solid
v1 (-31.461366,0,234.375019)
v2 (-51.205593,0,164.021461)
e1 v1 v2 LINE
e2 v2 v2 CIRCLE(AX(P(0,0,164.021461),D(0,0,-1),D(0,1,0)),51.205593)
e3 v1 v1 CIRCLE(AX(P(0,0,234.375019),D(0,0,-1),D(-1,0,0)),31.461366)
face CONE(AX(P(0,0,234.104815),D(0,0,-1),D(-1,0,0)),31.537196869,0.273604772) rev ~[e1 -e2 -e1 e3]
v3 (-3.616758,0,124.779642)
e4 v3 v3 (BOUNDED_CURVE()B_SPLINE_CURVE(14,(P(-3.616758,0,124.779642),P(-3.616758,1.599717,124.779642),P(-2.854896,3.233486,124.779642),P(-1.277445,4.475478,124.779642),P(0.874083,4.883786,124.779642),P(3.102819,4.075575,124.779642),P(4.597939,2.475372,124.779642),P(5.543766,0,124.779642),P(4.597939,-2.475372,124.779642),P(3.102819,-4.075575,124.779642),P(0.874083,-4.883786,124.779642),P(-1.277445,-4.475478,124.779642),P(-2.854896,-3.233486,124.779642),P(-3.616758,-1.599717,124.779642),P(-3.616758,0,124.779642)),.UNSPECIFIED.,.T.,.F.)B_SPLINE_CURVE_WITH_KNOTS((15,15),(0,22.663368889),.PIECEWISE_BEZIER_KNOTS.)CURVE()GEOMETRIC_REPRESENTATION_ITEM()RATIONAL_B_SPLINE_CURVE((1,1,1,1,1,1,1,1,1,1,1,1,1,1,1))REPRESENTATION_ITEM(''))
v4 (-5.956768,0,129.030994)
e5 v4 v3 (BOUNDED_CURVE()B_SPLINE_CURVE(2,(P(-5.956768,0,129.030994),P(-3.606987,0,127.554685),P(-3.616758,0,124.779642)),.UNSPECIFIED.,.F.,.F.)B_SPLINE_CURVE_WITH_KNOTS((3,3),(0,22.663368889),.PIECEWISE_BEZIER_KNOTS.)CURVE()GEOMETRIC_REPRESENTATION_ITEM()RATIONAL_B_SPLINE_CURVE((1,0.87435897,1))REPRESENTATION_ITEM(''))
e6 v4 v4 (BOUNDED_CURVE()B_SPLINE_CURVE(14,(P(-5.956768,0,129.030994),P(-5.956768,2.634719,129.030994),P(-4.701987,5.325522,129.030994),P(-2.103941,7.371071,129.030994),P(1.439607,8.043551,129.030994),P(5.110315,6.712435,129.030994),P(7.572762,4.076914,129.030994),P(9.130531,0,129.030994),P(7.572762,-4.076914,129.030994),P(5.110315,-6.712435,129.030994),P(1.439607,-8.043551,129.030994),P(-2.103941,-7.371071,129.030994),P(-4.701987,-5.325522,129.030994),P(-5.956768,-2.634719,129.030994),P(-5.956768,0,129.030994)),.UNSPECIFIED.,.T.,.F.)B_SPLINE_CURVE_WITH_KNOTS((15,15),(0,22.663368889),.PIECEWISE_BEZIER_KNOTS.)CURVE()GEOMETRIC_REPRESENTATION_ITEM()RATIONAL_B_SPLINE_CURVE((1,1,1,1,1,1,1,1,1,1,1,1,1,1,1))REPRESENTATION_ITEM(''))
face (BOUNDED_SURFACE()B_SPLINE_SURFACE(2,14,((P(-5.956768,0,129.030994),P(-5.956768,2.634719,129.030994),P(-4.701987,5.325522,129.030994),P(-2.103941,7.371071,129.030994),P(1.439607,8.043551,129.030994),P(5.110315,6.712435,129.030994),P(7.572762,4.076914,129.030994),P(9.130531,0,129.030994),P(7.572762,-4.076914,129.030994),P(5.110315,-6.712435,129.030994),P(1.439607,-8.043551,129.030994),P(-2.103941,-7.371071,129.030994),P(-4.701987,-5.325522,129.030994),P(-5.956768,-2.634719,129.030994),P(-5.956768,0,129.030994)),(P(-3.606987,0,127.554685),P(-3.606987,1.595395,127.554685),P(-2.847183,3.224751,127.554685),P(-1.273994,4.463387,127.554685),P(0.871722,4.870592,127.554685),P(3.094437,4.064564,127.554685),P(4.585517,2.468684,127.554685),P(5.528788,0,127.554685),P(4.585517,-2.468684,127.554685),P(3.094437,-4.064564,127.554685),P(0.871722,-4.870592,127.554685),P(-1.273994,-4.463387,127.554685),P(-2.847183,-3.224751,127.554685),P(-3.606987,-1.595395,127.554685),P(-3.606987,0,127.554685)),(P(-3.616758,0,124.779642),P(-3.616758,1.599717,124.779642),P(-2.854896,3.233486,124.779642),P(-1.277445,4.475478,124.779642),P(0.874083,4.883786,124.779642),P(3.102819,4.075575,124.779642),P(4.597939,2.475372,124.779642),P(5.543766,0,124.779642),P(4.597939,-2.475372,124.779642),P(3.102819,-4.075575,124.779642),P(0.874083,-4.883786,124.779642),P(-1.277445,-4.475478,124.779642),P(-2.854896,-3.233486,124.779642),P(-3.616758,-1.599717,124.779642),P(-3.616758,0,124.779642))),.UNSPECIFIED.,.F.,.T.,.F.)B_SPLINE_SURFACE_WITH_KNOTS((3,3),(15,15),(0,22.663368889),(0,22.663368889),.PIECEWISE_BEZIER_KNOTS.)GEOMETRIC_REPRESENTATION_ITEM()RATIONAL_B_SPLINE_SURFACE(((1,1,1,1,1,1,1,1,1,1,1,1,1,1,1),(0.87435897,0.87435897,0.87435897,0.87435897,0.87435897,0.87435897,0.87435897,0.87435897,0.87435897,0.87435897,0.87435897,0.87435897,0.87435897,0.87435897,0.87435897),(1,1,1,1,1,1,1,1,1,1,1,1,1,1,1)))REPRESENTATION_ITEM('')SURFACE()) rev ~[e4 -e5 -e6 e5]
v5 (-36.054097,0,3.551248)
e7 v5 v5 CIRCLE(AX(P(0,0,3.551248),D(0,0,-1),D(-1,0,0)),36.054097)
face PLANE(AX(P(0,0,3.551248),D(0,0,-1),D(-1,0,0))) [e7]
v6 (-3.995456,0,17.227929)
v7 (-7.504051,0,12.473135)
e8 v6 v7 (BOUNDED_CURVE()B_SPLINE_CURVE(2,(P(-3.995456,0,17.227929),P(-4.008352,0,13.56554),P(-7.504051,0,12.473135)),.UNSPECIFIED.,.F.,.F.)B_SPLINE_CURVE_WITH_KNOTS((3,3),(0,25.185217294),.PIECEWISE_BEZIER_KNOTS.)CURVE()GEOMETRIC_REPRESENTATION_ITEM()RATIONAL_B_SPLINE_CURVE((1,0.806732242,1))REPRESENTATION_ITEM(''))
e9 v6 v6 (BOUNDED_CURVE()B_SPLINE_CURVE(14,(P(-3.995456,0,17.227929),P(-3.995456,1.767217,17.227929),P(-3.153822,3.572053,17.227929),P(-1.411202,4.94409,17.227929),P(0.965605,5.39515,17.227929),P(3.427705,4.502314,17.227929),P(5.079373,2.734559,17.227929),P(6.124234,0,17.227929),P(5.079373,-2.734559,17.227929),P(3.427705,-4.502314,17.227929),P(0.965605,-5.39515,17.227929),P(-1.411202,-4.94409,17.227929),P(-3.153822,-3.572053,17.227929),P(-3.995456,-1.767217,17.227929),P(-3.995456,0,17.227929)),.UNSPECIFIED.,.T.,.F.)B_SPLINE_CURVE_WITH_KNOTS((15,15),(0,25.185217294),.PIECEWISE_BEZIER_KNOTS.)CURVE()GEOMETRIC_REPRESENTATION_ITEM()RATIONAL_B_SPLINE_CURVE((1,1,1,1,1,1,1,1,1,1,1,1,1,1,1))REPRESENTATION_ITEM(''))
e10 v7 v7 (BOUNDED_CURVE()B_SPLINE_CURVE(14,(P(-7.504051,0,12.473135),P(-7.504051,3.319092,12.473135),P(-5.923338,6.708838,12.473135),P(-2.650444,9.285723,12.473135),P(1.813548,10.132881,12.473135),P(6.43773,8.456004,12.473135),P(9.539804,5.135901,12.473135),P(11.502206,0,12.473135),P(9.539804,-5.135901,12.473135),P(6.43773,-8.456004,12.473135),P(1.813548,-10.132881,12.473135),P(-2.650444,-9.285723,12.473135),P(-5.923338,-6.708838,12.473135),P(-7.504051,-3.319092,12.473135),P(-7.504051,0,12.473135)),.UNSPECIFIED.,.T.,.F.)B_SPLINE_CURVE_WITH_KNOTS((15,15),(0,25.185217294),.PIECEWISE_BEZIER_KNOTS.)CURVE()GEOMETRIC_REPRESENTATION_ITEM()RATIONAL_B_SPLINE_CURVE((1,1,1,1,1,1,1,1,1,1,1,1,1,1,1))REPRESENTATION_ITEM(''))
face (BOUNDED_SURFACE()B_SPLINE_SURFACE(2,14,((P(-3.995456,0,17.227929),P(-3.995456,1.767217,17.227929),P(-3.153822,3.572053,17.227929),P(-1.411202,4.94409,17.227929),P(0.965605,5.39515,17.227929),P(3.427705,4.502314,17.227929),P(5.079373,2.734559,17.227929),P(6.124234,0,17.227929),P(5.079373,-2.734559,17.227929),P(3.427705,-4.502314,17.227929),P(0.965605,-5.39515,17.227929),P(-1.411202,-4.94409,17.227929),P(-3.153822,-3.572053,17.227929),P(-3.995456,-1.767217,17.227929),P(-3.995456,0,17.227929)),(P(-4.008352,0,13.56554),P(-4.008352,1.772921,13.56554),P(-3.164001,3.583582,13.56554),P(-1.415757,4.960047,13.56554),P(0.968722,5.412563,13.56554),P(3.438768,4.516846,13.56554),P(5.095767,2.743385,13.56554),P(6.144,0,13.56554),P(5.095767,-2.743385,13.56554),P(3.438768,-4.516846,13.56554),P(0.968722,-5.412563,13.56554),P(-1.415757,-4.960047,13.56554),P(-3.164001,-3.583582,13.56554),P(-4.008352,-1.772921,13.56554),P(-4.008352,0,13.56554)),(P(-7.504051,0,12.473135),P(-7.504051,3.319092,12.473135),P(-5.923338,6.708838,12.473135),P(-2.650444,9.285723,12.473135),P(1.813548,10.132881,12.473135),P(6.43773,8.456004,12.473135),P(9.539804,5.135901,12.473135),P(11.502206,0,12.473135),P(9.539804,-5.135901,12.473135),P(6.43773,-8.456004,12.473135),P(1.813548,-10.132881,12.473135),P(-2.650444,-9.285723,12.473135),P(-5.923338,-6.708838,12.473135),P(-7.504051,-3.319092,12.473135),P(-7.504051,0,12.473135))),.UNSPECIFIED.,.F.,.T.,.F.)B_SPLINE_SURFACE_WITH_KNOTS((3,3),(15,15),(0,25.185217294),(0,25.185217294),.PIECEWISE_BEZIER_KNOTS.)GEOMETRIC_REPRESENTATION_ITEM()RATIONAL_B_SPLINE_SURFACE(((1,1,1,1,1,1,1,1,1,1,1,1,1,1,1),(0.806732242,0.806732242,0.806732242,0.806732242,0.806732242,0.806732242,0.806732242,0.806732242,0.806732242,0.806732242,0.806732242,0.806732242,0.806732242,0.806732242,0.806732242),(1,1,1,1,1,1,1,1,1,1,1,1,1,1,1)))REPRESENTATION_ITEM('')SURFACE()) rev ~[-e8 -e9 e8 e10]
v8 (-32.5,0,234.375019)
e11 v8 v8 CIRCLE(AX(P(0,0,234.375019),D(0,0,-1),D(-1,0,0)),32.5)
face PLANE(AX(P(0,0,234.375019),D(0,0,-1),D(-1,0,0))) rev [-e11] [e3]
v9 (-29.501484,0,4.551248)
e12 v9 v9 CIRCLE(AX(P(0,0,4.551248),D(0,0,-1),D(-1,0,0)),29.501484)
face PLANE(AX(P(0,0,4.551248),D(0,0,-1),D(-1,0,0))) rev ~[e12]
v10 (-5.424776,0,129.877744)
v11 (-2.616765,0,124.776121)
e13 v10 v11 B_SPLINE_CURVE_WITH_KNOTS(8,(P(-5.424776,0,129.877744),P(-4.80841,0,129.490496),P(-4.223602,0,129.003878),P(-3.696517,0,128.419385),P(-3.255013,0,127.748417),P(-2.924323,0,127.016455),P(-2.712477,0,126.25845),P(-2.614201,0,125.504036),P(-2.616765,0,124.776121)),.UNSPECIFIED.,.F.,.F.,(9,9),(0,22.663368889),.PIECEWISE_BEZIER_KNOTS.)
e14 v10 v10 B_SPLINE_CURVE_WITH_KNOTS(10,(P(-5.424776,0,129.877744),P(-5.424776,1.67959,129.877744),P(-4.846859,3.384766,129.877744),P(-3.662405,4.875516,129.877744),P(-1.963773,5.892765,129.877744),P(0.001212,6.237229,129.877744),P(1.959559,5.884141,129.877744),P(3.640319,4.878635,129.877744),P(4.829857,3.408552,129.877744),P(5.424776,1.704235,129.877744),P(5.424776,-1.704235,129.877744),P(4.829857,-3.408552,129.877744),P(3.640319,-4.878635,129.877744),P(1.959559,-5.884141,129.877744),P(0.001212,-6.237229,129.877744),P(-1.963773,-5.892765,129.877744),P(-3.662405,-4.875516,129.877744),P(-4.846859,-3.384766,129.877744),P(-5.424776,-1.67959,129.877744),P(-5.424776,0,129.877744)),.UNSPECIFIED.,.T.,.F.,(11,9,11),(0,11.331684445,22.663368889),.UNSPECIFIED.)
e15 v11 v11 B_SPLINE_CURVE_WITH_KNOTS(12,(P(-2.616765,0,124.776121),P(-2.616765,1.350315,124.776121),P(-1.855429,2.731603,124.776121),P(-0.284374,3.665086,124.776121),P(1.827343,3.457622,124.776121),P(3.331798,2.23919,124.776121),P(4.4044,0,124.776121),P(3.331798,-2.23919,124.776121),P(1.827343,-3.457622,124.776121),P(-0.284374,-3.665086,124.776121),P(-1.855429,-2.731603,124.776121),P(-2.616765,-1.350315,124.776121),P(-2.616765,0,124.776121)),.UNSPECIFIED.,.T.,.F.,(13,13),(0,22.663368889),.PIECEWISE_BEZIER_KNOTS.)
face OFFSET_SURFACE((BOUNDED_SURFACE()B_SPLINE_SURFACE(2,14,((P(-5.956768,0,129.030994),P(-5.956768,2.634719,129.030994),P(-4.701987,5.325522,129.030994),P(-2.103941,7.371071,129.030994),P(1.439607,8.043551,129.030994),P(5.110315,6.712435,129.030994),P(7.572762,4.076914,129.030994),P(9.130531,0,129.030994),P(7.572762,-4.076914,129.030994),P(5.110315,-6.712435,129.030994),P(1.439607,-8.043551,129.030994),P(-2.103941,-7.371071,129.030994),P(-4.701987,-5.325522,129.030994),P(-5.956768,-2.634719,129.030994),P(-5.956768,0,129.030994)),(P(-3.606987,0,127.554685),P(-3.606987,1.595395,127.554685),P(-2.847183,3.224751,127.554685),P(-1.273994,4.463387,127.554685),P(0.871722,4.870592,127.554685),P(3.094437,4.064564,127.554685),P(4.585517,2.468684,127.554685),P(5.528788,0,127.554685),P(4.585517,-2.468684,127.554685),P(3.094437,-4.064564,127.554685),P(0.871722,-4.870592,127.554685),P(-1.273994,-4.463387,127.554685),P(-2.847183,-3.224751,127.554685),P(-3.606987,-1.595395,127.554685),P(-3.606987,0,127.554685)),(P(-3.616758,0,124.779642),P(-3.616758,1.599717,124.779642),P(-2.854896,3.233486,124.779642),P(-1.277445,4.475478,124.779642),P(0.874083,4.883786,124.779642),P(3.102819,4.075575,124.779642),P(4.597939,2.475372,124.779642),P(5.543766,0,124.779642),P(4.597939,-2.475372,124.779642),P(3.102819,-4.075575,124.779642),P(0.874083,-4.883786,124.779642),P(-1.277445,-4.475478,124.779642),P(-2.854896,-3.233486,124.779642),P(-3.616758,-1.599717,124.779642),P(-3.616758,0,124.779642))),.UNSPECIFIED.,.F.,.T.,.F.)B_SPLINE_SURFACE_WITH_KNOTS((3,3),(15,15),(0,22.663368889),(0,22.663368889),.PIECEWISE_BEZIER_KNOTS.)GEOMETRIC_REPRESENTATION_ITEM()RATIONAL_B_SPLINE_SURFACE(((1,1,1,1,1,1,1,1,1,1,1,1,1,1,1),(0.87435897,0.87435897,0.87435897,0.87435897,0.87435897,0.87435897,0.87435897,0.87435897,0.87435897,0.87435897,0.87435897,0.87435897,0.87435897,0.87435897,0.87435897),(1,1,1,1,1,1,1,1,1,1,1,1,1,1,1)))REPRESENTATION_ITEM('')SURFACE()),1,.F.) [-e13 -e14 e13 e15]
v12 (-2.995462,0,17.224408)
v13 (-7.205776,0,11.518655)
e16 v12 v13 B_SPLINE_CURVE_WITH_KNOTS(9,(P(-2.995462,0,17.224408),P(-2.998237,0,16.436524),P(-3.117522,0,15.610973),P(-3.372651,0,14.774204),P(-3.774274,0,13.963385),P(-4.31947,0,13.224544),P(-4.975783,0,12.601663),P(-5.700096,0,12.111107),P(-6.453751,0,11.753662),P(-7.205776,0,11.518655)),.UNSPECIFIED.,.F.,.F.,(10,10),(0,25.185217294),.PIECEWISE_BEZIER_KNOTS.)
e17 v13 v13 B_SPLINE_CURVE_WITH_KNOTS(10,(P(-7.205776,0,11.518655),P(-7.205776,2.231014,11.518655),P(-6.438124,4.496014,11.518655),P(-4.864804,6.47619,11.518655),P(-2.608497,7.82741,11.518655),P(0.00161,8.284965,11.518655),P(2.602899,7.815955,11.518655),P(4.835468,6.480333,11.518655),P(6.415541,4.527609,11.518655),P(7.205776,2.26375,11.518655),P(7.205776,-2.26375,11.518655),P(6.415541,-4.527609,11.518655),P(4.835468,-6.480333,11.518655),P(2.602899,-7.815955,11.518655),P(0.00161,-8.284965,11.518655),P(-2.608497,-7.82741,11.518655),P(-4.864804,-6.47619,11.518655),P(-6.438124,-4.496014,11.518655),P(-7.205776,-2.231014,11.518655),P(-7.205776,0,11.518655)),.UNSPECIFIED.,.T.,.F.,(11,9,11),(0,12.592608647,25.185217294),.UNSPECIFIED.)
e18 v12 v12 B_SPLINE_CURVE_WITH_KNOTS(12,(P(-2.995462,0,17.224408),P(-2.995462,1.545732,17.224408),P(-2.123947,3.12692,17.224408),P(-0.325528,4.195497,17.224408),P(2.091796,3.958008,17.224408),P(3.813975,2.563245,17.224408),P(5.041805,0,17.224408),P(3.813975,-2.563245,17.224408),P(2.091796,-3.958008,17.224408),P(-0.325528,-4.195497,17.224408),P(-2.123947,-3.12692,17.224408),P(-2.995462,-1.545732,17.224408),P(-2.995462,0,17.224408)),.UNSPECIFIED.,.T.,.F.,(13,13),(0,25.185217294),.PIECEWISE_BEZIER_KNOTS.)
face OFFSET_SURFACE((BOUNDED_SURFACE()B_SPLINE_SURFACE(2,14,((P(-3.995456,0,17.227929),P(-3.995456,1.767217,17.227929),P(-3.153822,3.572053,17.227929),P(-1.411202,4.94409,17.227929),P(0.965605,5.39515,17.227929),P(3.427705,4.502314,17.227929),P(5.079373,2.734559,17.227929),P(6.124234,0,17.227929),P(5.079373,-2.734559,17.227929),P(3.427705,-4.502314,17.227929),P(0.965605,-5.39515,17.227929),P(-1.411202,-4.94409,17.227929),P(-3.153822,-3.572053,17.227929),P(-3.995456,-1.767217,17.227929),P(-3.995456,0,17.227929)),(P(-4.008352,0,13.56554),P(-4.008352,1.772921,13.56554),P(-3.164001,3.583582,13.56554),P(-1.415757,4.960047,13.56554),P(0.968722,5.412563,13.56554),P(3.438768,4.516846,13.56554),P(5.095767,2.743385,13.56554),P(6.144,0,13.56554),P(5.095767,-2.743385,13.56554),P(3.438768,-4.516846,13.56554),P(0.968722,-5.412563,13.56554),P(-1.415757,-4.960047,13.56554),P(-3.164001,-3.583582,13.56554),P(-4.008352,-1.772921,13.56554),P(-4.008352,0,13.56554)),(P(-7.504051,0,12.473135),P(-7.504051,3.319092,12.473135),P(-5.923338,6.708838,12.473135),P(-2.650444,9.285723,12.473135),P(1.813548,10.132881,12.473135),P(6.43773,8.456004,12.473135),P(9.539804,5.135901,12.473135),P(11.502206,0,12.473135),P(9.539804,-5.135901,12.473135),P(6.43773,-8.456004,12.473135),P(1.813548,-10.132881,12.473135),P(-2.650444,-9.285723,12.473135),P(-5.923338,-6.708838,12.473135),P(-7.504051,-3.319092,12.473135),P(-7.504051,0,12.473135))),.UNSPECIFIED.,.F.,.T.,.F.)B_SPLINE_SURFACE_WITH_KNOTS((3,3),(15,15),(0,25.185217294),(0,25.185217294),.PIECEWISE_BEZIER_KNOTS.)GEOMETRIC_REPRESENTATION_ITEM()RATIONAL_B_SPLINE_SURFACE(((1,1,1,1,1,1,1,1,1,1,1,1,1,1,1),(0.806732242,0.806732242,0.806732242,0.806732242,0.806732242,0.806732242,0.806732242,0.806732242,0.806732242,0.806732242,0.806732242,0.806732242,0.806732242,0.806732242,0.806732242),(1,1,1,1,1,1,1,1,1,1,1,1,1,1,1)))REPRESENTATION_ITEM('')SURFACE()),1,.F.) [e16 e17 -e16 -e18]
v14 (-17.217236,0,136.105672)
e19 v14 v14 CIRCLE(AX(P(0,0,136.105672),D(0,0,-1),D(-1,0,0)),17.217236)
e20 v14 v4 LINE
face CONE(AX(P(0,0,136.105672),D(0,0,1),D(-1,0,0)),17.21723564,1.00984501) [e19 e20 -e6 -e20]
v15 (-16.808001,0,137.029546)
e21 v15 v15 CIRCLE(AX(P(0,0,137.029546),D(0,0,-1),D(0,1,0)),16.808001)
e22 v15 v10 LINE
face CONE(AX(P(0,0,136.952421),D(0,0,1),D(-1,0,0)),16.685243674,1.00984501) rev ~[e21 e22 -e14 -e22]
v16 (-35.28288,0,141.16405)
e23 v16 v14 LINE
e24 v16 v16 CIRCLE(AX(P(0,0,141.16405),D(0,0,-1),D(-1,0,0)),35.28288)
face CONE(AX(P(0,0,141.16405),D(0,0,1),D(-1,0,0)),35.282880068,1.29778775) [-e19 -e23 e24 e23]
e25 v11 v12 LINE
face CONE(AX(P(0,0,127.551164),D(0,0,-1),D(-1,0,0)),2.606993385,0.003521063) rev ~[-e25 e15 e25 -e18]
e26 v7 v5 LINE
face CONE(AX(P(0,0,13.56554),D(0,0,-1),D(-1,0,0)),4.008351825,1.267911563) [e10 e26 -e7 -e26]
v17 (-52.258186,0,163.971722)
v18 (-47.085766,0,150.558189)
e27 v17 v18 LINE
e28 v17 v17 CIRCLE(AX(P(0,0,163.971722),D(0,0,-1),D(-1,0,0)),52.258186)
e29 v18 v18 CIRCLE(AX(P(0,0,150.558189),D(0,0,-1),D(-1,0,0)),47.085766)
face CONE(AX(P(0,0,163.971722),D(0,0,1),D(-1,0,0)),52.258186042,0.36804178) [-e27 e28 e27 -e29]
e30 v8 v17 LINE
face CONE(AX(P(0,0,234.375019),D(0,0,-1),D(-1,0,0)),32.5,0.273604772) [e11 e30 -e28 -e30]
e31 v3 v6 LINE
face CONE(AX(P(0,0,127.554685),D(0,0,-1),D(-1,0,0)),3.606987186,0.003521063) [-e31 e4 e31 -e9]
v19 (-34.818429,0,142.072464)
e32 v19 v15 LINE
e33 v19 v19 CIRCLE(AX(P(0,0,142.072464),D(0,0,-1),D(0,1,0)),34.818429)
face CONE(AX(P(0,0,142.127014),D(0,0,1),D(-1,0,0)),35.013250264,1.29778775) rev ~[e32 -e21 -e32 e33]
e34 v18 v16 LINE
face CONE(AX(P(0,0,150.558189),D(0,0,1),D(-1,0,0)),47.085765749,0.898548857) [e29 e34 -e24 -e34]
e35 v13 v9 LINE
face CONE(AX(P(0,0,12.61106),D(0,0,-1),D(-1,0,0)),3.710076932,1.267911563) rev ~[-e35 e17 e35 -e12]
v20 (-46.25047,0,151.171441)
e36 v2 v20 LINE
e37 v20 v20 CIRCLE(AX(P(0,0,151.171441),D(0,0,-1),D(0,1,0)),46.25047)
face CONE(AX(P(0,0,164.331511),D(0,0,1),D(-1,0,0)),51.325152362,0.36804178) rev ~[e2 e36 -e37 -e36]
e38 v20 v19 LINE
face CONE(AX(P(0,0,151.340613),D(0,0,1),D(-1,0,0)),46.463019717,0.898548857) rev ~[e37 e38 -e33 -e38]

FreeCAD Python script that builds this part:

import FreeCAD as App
import Part
import Sketcher
from FreeCAD import Vector


def edges_at(feature, points):
    """Names of the edges that pass closest to the given points."""
    edges = feature.Shape.Edges
    near = lambda p: min(range(len(edges)), key=lambda i: edges[i].distToShape(Part.Vertex(*p))[0])
    return sorted({f"Edge{near(p) + 1}" for p in points})


def faces_at(feature, points):
    """Names of the faces that lie closest to the given points."""
    faces = feature.Shape.Faces
    near = lambda p: min(range(len(faces)), key=lambda i: faces[i].distToShape(Part.Vertex(*p))[0])
    return sorted({f"Face{near(p) + 1}" for p in points})

doc = App.newDocument("Part")
body = doc.addObject("PartDesign::Body", "Body")

# Sketch on XZ plane
sketch1 = body.newObject("Sketcher::SketchObject", "Sketch")
sketch1.AttachmentSupport = (doc.getObject("XZ_Plane"), [""])
sketch1.MapMode = "FlatFace"
sketch1.addGeometry([
    Part.LineSegment(Vector(0, 234.375019, 0), Vector(-32.5, 234.375019, 0)),  # 0
    Part.LineSegment(Vector(-32.5, 234.375019, 0), Vector(-52.258186, 163.971722, 0)),  # 1
    Part.LineSegment(Vector(-52.258186, 163.971722, 0), Vector(-47.085766, 150.558189, 0)),  # 2
    Part.LineSegment(Vector(-47.085766, 150.558189, 0), Vector(-35.28288, 141.16405, 0)),  # 3
    Part.LineSegment(Vector(-35.28288, 141.16405, 0), Vector(-17.217236, 136.105672, 0)),  # 4
    Part.LineSegment(Vector(-17.217236, 136.105672, 0), Vector(-3.606987, 127.554685, 0)),  # 5
    Part.LineSegment(Vector(-3.606987, 127.554685, 0), Vector(-4.008352, 13.56554, 0)),  # 6
    Part.LineSegment(Vector(-4.008352, 13.56554, 0), Vector(-36.054097, 3.551248, 0)),  # 7
    Part.LineSegment(Vector(-36.054097, 3.551248, 0), Vector(0, 3.551248, 0)),  # 8
    Part.LineSegment(Vector(0, 3.551248, 0), Vector(0, 234.375019, 0)),  # 9
], False)
sketch1.addConstraint([
    Sketcher.Constraint("Coincident", 0, 2, 1, 1),
    Sketcher.Constraint("Coincident", 1, 2, 2, 1),
    Sketcher.Constraint("Coincident", 2, 2, 3, 1),
    Sketcher.Constraint("Coincident", 3, 2, 4, 1),
    Sketcher.Constraint("Coincident", 4, 2, 5, 1),
    Sketcher.Constraint("Coincident", 5, 2, 6, 1),
    Sketcher.Constraint("Coincident", 6, 2, 7, 1),
    Sketcher.Constraint("Coincident", 7, 2, 8, 1),
    Sketcher.Constraint("Coincident", 8, 2, 9, 1),
    Sketcher.Constraint("Coincident", 9, 2, 0, 1),
    Sketcher.Constraint("Horizontal", 0),
    Sketcher.Constraint("Horizontal", 8),
    Sketcher.Constraint("Vertical", 9),
    Sketcher.Constraint("PointOnObject", 8, 2, -2),
    Sketcher.Constraint("DistanceX", 0, 2, 0, 1, 32.5),
    Sketcher.Constraint("DistanceY", 9, 1, 9, 2, 230.823771),
    Sketcher.Constraint("DistanceX", 1, 2, 5, 2, 48.651199),
    Sketcher.Constraint("DistanceY", 7, 2, 3, 2, 137.612801),
    Sketcher.Constraint("Distance", 2, 14.376259),
    Sketcher.Constraint("Distance", 6, 113.989851),
    Sketcher.Constraint("DistanceX", 8, 1, 8, 2, 36.054097),
    Sketcher.Constraint("DistanceY", -1, 1, 0, 2, 234.375019),
    Sketcher.Constraint("DistanceY", -1, 1, 2, 2, 150.558189),
    Sketcher.Constraint("DistanceX", 3, 2, -1, 1, 35.28288),
    Sketcher.Constraint("DistanceY", -1, 1, 4, 2, 136.105672),
    Sketcher.Constraint("DistanceX", 6, 2, -1, 1, 4.008352),
    Sketcher.Constraint("DistanceY", -1, 1, 6, 2, 13.56554),
    Sketcher.Constraint("DistanceX", 1, 2, 2, 2, 5.17242),
    Sketcher.Constraint("DistanceX", 2, 2, 4, 2, 29.86853),
    Sketcher.Constraint("DistanceX", 7, 2, 5, 2, 32.44711),
])
revolution = body.newObject("PartDesign::Revolution", "Revolution")
revolution.Profile = sketch1
revolution.ReferenceAxis = (sketch1, ["V_Axis"])
revolution.Angle = 360
doc.recompute()

fillet = body.newObject("PartDesign::Fillet", "Fillet")
fillet.Base = (revolution, edges_at(revolution, [(4.008, 0, 13.566), (3.607, 0, 127.555)]))
fillet.Radius = 5
doc.recompute()

thickness = body.newObject("PartDesign::Thickness", "Thickness")
thickness.Base = (fillet, faces_at(fillet, [(0, 0, 234.375)]))
thickness.Value = 1
thickness.Reversed = True
thickness.Join = "Intersection"

doc.recompute()
